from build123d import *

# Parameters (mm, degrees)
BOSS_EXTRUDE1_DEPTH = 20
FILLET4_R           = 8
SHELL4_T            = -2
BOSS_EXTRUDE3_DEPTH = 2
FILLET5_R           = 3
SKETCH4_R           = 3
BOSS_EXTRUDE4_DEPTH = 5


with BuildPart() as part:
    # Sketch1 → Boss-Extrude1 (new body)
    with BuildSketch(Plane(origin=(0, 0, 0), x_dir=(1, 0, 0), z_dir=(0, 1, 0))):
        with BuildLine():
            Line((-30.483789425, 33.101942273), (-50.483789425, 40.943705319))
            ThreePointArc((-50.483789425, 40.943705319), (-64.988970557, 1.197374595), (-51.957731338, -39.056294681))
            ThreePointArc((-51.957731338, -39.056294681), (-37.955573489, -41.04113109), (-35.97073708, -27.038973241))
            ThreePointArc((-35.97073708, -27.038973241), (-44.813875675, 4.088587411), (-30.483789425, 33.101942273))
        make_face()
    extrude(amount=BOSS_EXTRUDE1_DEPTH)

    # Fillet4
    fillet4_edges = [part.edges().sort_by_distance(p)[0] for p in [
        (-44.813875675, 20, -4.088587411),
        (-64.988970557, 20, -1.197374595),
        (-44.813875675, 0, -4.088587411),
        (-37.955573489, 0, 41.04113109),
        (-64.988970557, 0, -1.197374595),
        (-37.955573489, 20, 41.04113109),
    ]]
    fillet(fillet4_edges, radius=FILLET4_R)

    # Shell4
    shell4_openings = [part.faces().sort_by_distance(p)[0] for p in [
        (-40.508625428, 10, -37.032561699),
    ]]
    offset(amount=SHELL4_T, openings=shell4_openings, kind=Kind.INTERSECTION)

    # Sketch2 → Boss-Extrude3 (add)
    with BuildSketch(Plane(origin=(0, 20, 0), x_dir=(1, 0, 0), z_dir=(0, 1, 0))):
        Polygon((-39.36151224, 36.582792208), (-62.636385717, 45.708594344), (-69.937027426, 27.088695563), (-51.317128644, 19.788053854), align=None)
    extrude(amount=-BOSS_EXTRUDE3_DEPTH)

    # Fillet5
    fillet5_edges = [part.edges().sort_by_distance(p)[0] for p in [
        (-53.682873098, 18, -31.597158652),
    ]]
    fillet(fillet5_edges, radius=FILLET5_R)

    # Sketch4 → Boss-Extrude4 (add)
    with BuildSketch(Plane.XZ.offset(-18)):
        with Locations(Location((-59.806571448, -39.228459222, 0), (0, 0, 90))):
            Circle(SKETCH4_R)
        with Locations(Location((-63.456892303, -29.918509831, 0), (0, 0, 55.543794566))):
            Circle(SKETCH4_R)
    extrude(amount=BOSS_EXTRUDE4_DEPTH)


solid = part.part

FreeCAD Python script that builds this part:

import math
import FreeCAD as App
import Part
import Sketcher


def edges_at(feature, points):
    """Names of the edges that pass closest to the given points."""
    edges = feature.Shape.Edges
    near = lambda p: min(range(len(edges)), key=lambda i: edges[i].distToShape(Part.Vertex(*p))[0])
    return sorted({f"Edge{near(p) + 1}" for p in points})


def faces_at(feature, points):
    """Names of the faces that lie closest to the given points."""
    faces = feature.Shape.Faces
    near = lambda p: min(range(len(faces)), key=lambda i: faces[i].distToShape(Part.Vertex(*p))[0])
    return sorted({f"Face{near(p) + 1}" for p in points})

doc = App.newDocument("Part")
body = doc.addObject("PartDesign::Body", "Body")

# Sketch on XZ plane
sketch1 = doc.addObject("Sketcher::SketchObject", "Sketch")
body.addObject(sketch1)
sketch1.AttachmentSupport = (doc.XZ_Plane, [""])
sketch1.MapMode = "FlatFace"
sketch1.addGeometry(Part.LineSegment(App.Vector(-30, -33, 0), App.Vector(-50, -41, 0)), False)
sketch1.addGeometry(Part.ArcOfCircle(Part.Circle(App.Vector(0, 0, 0), App.Vector(0, 0, 1), 65), math.radians(143), math.radians(219)), False)
sketch1.addGeometry(Part.ArcOfCircle(Part.Circle(App.Vector(-44, 33, 0), App.Vector(0, 0, 1), 10), math.radians(-37), math.radians(143)), False)
sketch1.addGeometry(Part.ArcOfCircle(Part.Circle(App.Vector(0, 0, 0), App.Vector(0, 0, 1), 45), math.radians(143), math.radians(227)), False)
sketch1.addConstraint(Sketcher.Constraint("Coincident", 0, 2, 1, 2))
sketch1.addConstraint(Sketcher.Constraint("Tangent", 1, 1, 2, 2))
sketch1.addConstraint(Sketcher.Constraint("Tangent", 2, 1, 3, 1))
sketch1.addConstraint(Sketcher.Constraint("Coincident", 3, 2, 0, 1))
sketch1.addConstraint(Sketcher.Constraint("Coincident", 1, 3, -1, 1))
sketch1.addConstraint(Sketcher.Constraint("Coincident", 3, 3, -1, 1))
sketch1.addConstraint(Sketcher.Constraint("Radius", 1, 65.0))
sketch1.addConstraint(Sketcher.Constraint("Radius", 2, 10.0))
sketch1.addConstraint(Sketcher.Constraint("DistanceY", 0, 2, 1, 1, 80.0))
sketch1.addConstraint(Sketcher.Constraint("DistanceX", 0, 2, 3, 2, 20.0))
sketch1.addConstraint(Sketcher.Constraint("DistanceX", 0, 2, -1, 1, 50.483789))
pad1 = doc.addObject("PartDesign::Pad", "Pad")
body.addObject(pad1)
pad1.Profile = sketch1
pad1.Length = 20
pad1.Reversed = True
doc.recompute()

fillet = doc.addObject("PartDesign::Fillet", "Fillet")
body.addObject(fillet)
fillet.Base = (pad1, edges_at(pad1, [
    (-44.814, 20, -4.089),
    (-64.989, 20, -1.197),
    (-44.814, 0, -4.089),
    (-37.956, 0, 41.041),
    (-64.989, 0, -1.197),
    (-37.956, 20, 41.041),
]))
fillet.Radius = 8
doc.recompute()

thickness = doc.addObject("PartDesign::Thickness", "Thickness")
body.addObject(thickness)
thickness.Base = (fillet, faces_at(fillet, [(-40.484, 10, -37.023)]))
thickness.Value = 2
thickness.Reversed = True
thickness.Join = "Intersection"

# Sketch on XZ plane
sketch2 = doc.addObject("Sketcher::SketchObject", "Sketch001")
body.addObject(sketch2)
sketch2.AttachmentSupport = (doc.XZ_Plane, [""])
sketch2.MapMode = "FlatFace"
sketch2.AttachmentOffset = App.Placement(App.Vector(0, 0, -20), App.Rotation())
sketch2.addGeometry(Part.LineSegment(App.Vector(-39, -37, 0), App.Vector(-63, -46, 0)), False)
sketch2.addGeometry(Part.LineSegment(App.Vector(-63, -46, 0), App.Vector(-70, -27, 0)), False)
sketch2.addGeometry(Part.LineSegment(App.Vector(-70, -27, 0), App.Vector(-51, -20, 0)), False)
sketch2.addGeometry(Part.LineSegment(App.Vector(-51, -20, 0), App.Vector(-39, -37, 0)), False)
sketch2.addConstraint(Sketcher.Constraint("Coincident", 0, 2, 1, 1))
sketch2.addConstraint(Sketcher.Constraint("Coincident", 1, 2, 2, 1))
sketch2.addConstraint(Sketcher.Constraint("Coincident", 2, 2, 3, 1))
sketch2.addConstraint(Sketcher.Constraint("Coincident", 3, 2, 0, 1))
sketch2.addConstraint(Sketcher.Constraint("Perpendicular", 0, 1))
sketch2.addConstraint(Sketcher.Constraint("Perpendicular", 1, 2))
sketch2.addConstraint(Sketcher.Constraint("Equal", 1, 2))
sketch2.addConstraint(Sketcher.Constraint("Distance", 0, 25.0))
sketch2.addConstraint(Sketcher.Constraint("Distance", 1, 20.0))
sketch2.addConstraint(Sketcher.Constraint("DistanceY", 0, 2, 1, 2, 18.619899))
sketch2.addConstraint(Sketcher.Constraint("DistanceX", 2, 2, -1, 1, 51.317129))
sketch2.addConstraint(Sketcher.Constraint("DistanceY", 0, 2, -1, 1, 45.708594))
pad2 = doc.addObject("PartDesign::Pad", "Pad001")
body.addObject(pad2)
pad2.Profile = sketch2
pad2.Length = 2
doc.recompute()

fillet2 = doc.addObject("PartDesign::Fillet", "Fillet001")
body.addObject(fillet2)
fillet2.Base = (pad2, edges_at(pad2, [(-53.683, 18, -31.597)]))
fillet2.Radius = 3

# Sketch on XZ plane
sketch3 = doc.addObject("Sketcher::SketchObject", "Sketch002")
body.addObject(sketch3)
sketch3.AttachmentSupport = (doc.XZ_Plane, [""])
sketch3.MapMode = "FlatFace"
sketch3.AttachmentOffset = App.Placement(App.Vector(0, 0, -18), App.Rotation())
sketch3.addGeometry(Part.Circle(App.Vector(-59.8, -39.2, 0), App.Vector(0, 0, 1), 3), False)
sketch3.addGeometry(Part.Circle(App.Vector(-63.5, -29.9, 0), App.Vector(0, 0, 1), 3), False)
sketch3.addConstraint(Sketcher.Constraint("Equal", 0, 1))
sketch3.addConstraint(Sketcher.Constraint("Diameter", 0, 6.0))
sketch3.addConstraint(Sketcher.Constraint("DistanceX", 0, 3, -1, 1, 59.806571))
sketch3.addConstraint(Sketcher.Constraint("DistanceY", 0, 3, -1, 1, 39.228459))
sketch3.addConstraint(Sketcher.Constraint("DistanceY", 1, 3, -1, 1, 29.91851))
sketch3.addConstraint(Sketcher.Constraint("DistanceX", 1, 3, 0, 3, 3.650321))
pad3 = doc.addObject("PartDesign::Pad", "Pad002")
body.addObject(pad3)
pad3.Profile = sketch3
pad3.Length = 5

doc.recompute()
